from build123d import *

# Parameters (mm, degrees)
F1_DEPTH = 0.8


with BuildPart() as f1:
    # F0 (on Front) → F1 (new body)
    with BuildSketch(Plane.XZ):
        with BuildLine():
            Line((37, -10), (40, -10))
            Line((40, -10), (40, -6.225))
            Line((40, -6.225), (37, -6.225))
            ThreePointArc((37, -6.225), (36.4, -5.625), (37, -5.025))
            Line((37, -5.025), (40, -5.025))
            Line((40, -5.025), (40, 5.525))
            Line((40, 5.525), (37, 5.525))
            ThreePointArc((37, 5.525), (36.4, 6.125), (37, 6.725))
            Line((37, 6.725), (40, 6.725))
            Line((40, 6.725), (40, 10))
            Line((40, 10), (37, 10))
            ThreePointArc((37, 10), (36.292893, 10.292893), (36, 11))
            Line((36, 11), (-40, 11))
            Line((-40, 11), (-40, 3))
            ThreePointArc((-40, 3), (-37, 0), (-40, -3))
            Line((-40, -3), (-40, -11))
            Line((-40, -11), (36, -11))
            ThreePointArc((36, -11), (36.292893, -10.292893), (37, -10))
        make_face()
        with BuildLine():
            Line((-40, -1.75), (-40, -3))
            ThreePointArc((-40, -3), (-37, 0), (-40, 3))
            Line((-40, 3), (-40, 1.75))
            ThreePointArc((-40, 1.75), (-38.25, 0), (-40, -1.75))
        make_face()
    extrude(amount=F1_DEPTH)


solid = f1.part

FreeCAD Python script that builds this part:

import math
import FreeCAD as App
import Part
import Sketcher
from FreeCAD import Vector

doc = App.newDocument("Part")
params = doc.addObject("Spreadsheet::Sheet", "Params")
for row, (alias, value) in enumerate([
    ("sketch1_radius", "0.999999 mm"),
    ("sketch1_radius2", "0.6 mm"),
    ("sketch1_width", "3 mm"),
    ("sketch1_width2", "76 mm"),
    ("sketch1_radius3", "1.75 mm"),
    ("pad1_length", "0.8 mm"),
], start=1):
    params.set(f"A{row}", alias)
    params.set(f"B{row}", "=" + value)
    params.setAlias(f"B{row}", alias)

body = doc.addObject("PartDesign::Body", "Body")

# Sketch on XZ plane
sketch1 = doc.addObject("Sketcher::SketchObject", "Sketch")
body.addObject(sketch1)
sketch1.AttachmentSupport = (doc.XZ_Plane, [""])
sketch1.MapMode = "FlatFace"
sketch1.addGeometry(Part.LineSegment(Vector(37, -10, 0), Vector(40, -10, 0)), False)
sketch1.addGeometry(Part.LineSegment(Vector(40, -10, 0), Vector(40, -6.2, 0)), False)
sketch1.addGeometry(Part.LineSegment(Vector(40, -6.2, 0), Vector(37, -6.2, 0)), False)
sketch1.addGeometry(Part.ArcOfCircle(Part.Circle(Vector(37, -5.6, 0), Vector(0, 0, 1), 0.6), math.radians(90), math.radians(270)), False)
sketch1.addGeometry(Part.LineSegment(Vector(37, -5, 0), Vector(40, -5, 0)), False)
sketch1.addGeometry(Part.LineSegment(Vector(40, -5, 0), Vector(40, 5.5, 0)), False)
sketch1.addGeometry(Part.LineSegment(Vector(40, 5.5, 0), Vector(37, 5.5, 0)), False)
sketch1.addGeometry(Part.ArcOfCircle(Part.Circle(Vector(37, 6.1, 0), Vector(0, 0, 1), 0.6), math.radians(90), math.radians(270)), False)
sketch1.addGeometry(Part.LineSegment(Vector(37, 6.7, 0), Vector(40, 6.7, 0)), False)
sketch1.addGeometry(Part.LineSegment(Vector(40, 6.7, 0), Vector(40, 10, 0)), False)
sketch1.addGeometry(Part.LineSegment(Vector(40, 10, 0), Vector(37, 10, 0)), False)
sketch1.addGeometry(Part.ArcOfCircle(Part.Circle(Vector(37, 11, 0), Vector(0, 0, 1), 1), math.radians(180), math.radians(270)), False)
sketch1.addGeometry(Part.LineSegment(Vector(36, 11, 0), Vector(-40, 11, 0)), False)
sketch1.addGeometry(Part.LineSegment(Vector(-40, 11, 0), Vector(-40, 1.8, 0)), False)
sketch1.addGeometry(Part.ArcOfCircle(Part.Circle(Vector(-40, 0, 0), Vector(0, 0, 1), 1.8), math.radians(-90), math.radians(90)), False)
sketch1.addGeometry(Part.LineSegment(Vector(-40, -1.8, 0), Vector(-40, -11, 0)), False)
sketch1.addGeometry(Part.LineSegment(Vector(-40, -11, 0), Vector(36, -11, 0)), False)
sketch1.addGeometry(Part.ArcOfCircle(Part.Circle(Vector(37, -11, 0), Vector(0, 0, 1), 1), math.radians(90), math.radians(180)), False)
sketch1.addConstraint(Sketcher.Constraint("Coincident", 0, 2, 1, 1))
sketch1.addConstraint(Sketcher.Constraint("Coincident", 1, 2, 2, 1))
sketch1.addConstraint(Sketcher.Constraint("Tangent", 2, 2, 3, 2))
sketch1.addConstraint(Sketcher.Constraint("Tangent", 3, 1, 4, 1))
sketch1.addConstraint(Sketcher.Constraint("Coincident", 4, 2, 5, 1))
sketch1.addConstraint(Sketcher.Constraint("Coincident", 5, 2, 6, 1))
sketch1.addConstraint(Sketcher.Constraint("Tangent", 6, 2, 7, 2))
sketch1.addConstraint(Sketcher.Constraint("Tangent", 7, 1, 8, 1))
sketch1.addConstraint(Sketcher.Constraint("Coincident", 8, 2, 9, 1))
sketch1.addConstraint(Sketcher.Constraint("Coincident", 9, 2, 10, 1))
sketch1.addConstraint(Sketcher.Constraint("Tangent", 10, 2, 11, 2))
sketch1.addConstraint(Sketcher.Constraint("Coincident", 11, 1, 12, 1))
sketch1.addConstraint(Sketcher.Constraint("Coincident", 12, 2, 13, 1))
sketch1.addConstraint(Sketcher.Constraint("Coincident", 13, 2, 14, 2))
sketch1.addConstraint(Sketcher.Constraint("Coincident", 14, 1, 15, 1))
sketch1.addConstraint(Sketcher.Constraint("Coincident", 15, 2, 16, 1))
sketch1.addConstraint(Sketcher.Constraint("Coincident", 16, 2, 17, 2))
sketch1.addConstraint(Sketcher.Constraint("Tangent", 17, 1, 0, 1))
sketch1.addConstraint(Sketcher.Constraint("Horizontal", 0))
sketch1.addConstraint(Sketcher.Constraint("Vertical", 1))
sketch1.addConstraint(Sketcher.Constraint("Horizontal", 2))
sketch1.addConstraint(Sketcher.Constraint("Horizontal", 4))
sketch1.addConstraint(Sketcher.Constraint("Vertical", 5))
sketch1.addConstraint(Sketcher.Constraint("Horizontal", 6))
sketch1.addConstraint(Sketcher.Constraint("Horizontal", 8))
sketch1.addConstraint(Sketcher.Constraint("Vertical", 9))
sketch1.addConstraint(Sketcher.Constraint("Horizontal", 10))
sketch1.addConstraint(Sketcher.Constraint("Horizontal", 12))
sketch1.addConstraint(Sketcher.Constraint("Vertical", 13))
sketch1.addConstraint(Sketcher.Constraint("Vertical", 15))
sketch1.addConstraint(Sketcher.Constraint("Horizontal", 16))
sketch1.addConstraint(Sketcher.Constraint("Equal", 3, 7))
sketch1.addConstraint(Sketcher.Constraint("Equal", 11, 17))
sketch1.addConstraint(Sketcher.Constraint("Symmetric", 11, 3, 17, 3, -1))
sketch1.addConstraint(Sketcher.Constraint("Symmetric", 13, 2, 14, 1, -1))
sketch1.addConstraint(Sketcher.Constraint("Horizontal", 17, 3, 15, 2))
sketch1.addConstraint(Sketcher.Constraint("Vertical", 3, 3, 7, 3))
sketch1.addConstraint(Sketcher.Constraint("Vertical", 7, 3, 11, 3))
sketch1.addConstraint(Sketcher.Constraint("Vertical", 1, 2, 4, 2))
sketch1.addConstraint(Sketcher.Constraint("Vertical", 5, 2, 8, 2))
sketch1.addConstraint(Sketcher.Constraint("Vertical", 14, 3, 12, 2))
sketch1.addConstraint(Sketcher.Constraint("Equal", 13, 15))
sketch1.addConstraint(Sketcher.Constraint("Radius", 11, 0.999999))
sketch1.addConstraint(Sketcher.Constraint("Radius", 3, 0.6))
sketch1.addConstraint(Sketcher.Constraint("DistanceX", 0, 1, 0, 2, 3.0))
sketch1.addConstraint(Sketcher.Constraint("DistanceX", 12, 2, 12, 1, 76.0))
sketch1.addConstraint(Sketcher.Constraint("Radius", 14, 1.75))
sketch1.addConstraint(Sketcher.Constraint("DistanceX", -1, 1, 3, 3, 37.0))
sketch1.addConstraint(Sketcher.Constraint("DistanceY", -1, 1, 11, 3, 10.999999))
sketch1.addConstraint(Sketcher.Constraint("DistanceY", 5, 1, 5, 2, 10.55))
sketch1.addConstraint(Sketcher.Constraint("DistanceY", 1, 1, 1, 2, 3.775))
sketch1.setExpression("Constraints[42]", "Params.sketch1_radius")
sketch1.setExpression("Constraints[43]", "Params.sketch1_radius2")
sketch1.setExpression("Constraints[44]", "Params.sketch1_width")
sketch1.setExpression("Constraints[45]", "Params.sketch1_width2")
sketch1.setExpression("Constraints[46]", "Params.sketch1_radius3")
pad1 = doc.addObject("PartDesign::Pad", "Pad")
body.addObject(pad1)
pad1.Profile = sketch1
pad1.setExpression("Length", "Params.pad1_length")

doc.recompute()
